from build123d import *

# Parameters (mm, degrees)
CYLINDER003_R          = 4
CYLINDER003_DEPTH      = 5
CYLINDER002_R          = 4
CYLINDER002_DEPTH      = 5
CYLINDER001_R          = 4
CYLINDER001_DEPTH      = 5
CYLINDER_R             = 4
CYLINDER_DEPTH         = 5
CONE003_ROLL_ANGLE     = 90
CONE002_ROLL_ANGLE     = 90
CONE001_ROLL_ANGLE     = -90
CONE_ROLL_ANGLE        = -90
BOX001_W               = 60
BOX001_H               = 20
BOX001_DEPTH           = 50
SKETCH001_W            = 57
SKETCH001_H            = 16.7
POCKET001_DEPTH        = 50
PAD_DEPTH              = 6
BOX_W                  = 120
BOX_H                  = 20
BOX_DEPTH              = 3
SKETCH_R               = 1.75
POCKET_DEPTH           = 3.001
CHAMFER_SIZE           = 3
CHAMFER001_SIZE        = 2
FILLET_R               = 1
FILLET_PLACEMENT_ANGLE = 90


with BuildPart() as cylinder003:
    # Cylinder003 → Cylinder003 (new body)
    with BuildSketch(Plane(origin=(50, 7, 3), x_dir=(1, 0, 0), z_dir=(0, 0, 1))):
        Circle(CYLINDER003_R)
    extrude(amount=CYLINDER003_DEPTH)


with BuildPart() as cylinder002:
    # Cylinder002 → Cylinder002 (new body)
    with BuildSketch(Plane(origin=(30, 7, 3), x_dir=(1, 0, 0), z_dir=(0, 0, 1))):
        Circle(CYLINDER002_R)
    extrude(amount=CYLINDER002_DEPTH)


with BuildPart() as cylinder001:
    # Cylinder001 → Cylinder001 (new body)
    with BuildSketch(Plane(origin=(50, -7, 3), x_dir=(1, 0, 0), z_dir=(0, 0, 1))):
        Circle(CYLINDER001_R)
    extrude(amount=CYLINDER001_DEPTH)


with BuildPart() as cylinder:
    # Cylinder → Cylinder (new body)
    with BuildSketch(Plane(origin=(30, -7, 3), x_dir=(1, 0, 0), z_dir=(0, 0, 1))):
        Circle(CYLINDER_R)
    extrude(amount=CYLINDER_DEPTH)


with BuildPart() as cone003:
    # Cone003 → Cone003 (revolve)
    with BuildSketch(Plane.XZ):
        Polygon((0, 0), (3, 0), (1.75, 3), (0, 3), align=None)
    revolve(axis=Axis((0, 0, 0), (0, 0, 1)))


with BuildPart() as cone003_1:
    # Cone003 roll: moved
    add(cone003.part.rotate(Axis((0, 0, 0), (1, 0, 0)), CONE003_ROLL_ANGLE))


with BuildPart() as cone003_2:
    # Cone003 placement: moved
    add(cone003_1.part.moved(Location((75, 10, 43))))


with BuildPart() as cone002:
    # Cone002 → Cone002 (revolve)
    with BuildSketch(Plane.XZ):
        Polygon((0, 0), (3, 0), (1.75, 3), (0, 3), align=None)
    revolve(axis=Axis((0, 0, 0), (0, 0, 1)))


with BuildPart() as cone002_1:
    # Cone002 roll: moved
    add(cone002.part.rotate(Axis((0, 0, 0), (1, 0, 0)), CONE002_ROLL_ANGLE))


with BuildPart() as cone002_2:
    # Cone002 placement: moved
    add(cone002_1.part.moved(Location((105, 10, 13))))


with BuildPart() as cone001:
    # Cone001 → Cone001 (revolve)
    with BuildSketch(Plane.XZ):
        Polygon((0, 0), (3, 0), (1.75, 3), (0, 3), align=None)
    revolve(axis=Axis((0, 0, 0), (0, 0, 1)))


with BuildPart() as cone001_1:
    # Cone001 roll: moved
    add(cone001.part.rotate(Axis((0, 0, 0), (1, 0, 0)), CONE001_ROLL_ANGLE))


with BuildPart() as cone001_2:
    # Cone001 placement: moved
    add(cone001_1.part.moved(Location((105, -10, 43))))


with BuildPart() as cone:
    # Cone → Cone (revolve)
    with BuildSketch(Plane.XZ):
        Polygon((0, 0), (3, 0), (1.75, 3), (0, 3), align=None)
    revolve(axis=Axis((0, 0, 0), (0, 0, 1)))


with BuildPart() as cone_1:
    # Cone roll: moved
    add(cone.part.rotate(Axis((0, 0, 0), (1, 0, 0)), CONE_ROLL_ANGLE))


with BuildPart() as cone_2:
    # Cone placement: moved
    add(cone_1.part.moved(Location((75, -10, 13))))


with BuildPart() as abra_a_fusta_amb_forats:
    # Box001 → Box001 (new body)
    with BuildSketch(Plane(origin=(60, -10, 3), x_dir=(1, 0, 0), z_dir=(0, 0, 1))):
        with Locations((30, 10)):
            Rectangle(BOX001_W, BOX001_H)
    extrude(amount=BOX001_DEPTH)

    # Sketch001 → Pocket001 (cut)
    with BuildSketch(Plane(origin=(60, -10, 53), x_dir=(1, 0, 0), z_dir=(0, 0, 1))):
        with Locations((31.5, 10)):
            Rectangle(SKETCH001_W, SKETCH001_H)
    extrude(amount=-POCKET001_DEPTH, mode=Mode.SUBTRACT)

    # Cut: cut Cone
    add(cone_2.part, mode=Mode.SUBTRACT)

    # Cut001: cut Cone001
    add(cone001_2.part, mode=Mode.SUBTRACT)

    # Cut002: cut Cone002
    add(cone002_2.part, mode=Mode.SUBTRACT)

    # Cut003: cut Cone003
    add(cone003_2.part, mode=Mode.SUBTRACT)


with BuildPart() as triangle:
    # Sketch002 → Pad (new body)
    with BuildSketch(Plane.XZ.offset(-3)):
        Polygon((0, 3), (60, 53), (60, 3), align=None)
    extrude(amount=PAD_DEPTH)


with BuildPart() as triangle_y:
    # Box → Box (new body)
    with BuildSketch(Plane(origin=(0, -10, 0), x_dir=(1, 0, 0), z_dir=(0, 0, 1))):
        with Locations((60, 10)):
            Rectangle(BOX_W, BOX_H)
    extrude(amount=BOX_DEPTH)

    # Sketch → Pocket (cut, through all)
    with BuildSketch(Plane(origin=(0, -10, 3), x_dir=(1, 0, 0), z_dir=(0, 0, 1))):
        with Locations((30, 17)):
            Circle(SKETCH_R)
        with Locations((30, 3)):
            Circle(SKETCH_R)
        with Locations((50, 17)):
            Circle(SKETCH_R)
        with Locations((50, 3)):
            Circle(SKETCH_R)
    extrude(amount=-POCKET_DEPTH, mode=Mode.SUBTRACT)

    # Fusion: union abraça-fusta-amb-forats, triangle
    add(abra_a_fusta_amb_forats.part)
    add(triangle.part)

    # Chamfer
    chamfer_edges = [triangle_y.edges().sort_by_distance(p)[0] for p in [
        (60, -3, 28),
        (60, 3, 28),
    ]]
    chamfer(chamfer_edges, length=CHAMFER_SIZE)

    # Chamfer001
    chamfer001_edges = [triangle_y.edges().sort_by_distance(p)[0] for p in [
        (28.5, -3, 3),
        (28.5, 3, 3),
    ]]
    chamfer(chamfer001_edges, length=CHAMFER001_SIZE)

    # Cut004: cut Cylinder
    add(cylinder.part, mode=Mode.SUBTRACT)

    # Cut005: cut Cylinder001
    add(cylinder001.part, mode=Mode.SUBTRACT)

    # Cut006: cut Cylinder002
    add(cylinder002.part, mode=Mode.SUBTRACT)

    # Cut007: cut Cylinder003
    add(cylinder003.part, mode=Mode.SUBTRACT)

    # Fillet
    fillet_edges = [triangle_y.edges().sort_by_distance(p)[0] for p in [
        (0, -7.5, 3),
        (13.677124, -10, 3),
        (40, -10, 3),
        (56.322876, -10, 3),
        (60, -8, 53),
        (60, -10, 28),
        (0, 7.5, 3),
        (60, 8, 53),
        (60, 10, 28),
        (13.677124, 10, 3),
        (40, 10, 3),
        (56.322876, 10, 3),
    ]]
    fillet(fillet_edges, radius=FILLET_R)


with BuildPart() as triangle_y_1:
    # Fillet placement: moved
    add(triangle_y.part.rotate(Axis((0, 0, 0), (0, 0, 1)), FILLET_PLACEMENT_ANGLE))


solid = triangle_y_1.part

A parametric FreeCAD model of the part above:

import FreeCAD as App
import Part
import Sketcher
Q = App.Units.Quantity


def edges_at(feature, points):
    """Names of the edges that pass closest to the given points."""
    edges = feature.Shape.Edges
    near = lambda p: min(range(len(edges)), key=lambda i: edges[i].distToShape(Part.Vertex(*p))[0])
    return sorted({f"Edge{near(p) + 1}" for p in points})


def add_polygon(sketch, points):
    """Adds a closed chain of lines whose ends are joined by coincident constraints."""
    first, n = sketch.GeometryCount, len(points)
    for a, b in zip(points, points[1:] + points[:1]):
        sketch.addGeometry(Part.LineSegment(App.Vector(*a, 0), App.Vector(*b, 0)), False)
    for i in range(n):
        sketch.addConstraint(Sketcher.Constraint("Coincident", first + i, 2, first + (i + 1) % n, 1))

doc = App.newDocument("Part")
body = doc.addObject("PartDesign::Body", "Body")

sketch1 = doc.addObject("Sketcher::SketchObject", "Sketch")
body.addObject(sketch1)
sketch1.AttachmentSupport = (doc.XY_Plane, [""])
sketch1.MapMode = "FlatFace"
sketch1.AttachmentOffset = App.Placement(App.Vector(0, 0, 3), App.Rotation())
sketch1.addGeometry(Part.Circle(App.Vector(50, 7, 0), App.Vector(0, 0, 1), 4), False)
sketch1.addConstraint([
    Sketcher.Constraint("Diameter", 0, Q("8 mm")),
    Sketcher.Constraint("DistanceX", -1, 1, 0, 3, Q("50 mm")),
    Sketcher.Constraint("DistanceY", -1, 1, 0, 3, Q("7 mm")),
])
pad1 = doc.addObject("PartDesign::Pad", "Pad")
body.addObject(pad1)
pad1.Profile = sketch1
pad1.Length = 5
body2 = doc.addObject("PartDesign::Body", "Body001")

sketch2 = doc.addObject("Sketcher::SketchObject", "Sketch001")
body2.addObject(sketch2)
sketch2.AttachmentSupport = (doc.getObject("XY_Plane001"), [""])
sketch2.MapMode = "FlatFace"
sketch2.AttachmentOffset = App.Placement(App.Vector(0, 0, 3), App.Rotation())
sketch2.addGeometry(Part.Circle(App.Vector(30, 7, 0), App.Vector(0, 0, 1), 4), False)
sketch2.addConstraint([
    Sketcher.Constraint("Diameter", 0, Q("8 mm")),
    Sketcher.Constraint("DistanceX", -1, 1, 0, 3, Q("30 mm")),
    Sketcher.Constraint("DistanceY", -1, 1, 0, 3, Q("7 mm")),
])
pad2 = doc.addObject("PartDesign::Pad", "Pad001")
body2.addObject(pad2)
pad2.Profile = sketch2
pad2.Length = 5
body3 = doc.addObject("PartDesign::Body", "Body002")

sketch3 = doc.addObject("Sketcher::SketchObject", "Sketch002")
body3.addObject(sketch3)
sketch3.AttachmentSupport = (doc.getObject("XY_Plane002"), [""])
sketch3.MapMode = "FlatFace"
sketch3.AttachmentOffset = App.Placement(App.Vector(0, 0, 3), App.Rotation())
sketch3.addGeometry(Part.Circle(App.Vector(50, -7, 0), App.Vector(0, 0, 1), 4), False)
sketch3.addConstraint([
    Sketcher.Constraint("Diameter", 0, Q("8 mm")),
    Sketcher.Constraint("DistanceX", -1, 1, 0, 3, Q("50 mm")),
    Sketcher.Constraint("DistanceY", 0, 3, -1, 1, Q("7 mm")),
])
pad3 = doc.addObject("PartDesign::Pad", "Pad002")
body3.addObject(pad3)
pad3.Profile = sketch3
pad3.Length = 5
body4 = doc.addObject("PartDesign::Body", "Body003")

sketch4 = doc.addObject("Sketcher::SketchObject", "Sketch003")
body4.addObject(sketch4)
sketch4.AttachmentSupport = (doc.getObject("XY_Plane003"), [""])
sketch4.MapMode = "FlatFace"
sketch4.AttachmentOffset = App.Placement(App.Vector(0, 0, 3), App.Rotation())
sketch4.addGeometry(Part.Circle(App.Vector(30, -7, 0), App.Vector(0, 0, 1), 4), False)
sketch4.addConstraint([
    Sketcher.Constraint("Diameter", 0, Q("8 mm")),
    Sketcher.Constraint("DistanceX", -1, 1, 0, 3, Q("30 mm")),
    Sketcher.Constraint("DistanceY", 0, 3, -1, 1, Q("7 mm")),
])
pad4 = doc.addObject("PartDesign::Pad", "Pad003")
body4.addObject(pad4)
pad4.Profile = sketch4
pad4.Length = 5
body5 = doc.addObject("PartDesign::Body", "Body004")

sketch5 = doc.addObject("Sketcher::SketchObject", "Sketch004")
body5.addObject(sketch5)
sketch5.AttachmentSupport = (doc.getObject("XZ_Plane004"), [""])
sketch5.MapMode = "FlatFace"
add_polygon(sketch5, [(0, 0), (3, 0), (1.8, 3), (0, 3)])
sketch5.addConstraint([
    Sketcher.Constraint("Horizontal", 0),
    Sketcher.Constraint("Horizontal", 2),
    Sketcher.Constraint("Vertical", 3),
    Sketcher.Constraint("Coincident", 3, 2, -1, 1),
    Sketcher.Constraint("Equal", 0, 3),
    Sketcher.Constraint("DistanceX", 0, 1, 0, 2, Q("3 mm")),
    Sketcher.Constraint("DistanceX", 2, 2, 2, 1, Q("1.75 mm")),
])
revolution = doc.addObject("PartDesign::Revolution", "Revolution")
body5.addObject(revolution)
revolution.Profile = sketch5
revolution.ReferenceAxis = (sketch5, ["V_Axis"])
revolution.Angle = 360
body6 = doc.addObject("PartDesign::Body", "Body005")
doc.recompute()

body5.Placement = App.Placement(App.Vector(0, 0, 0), App.Rotation(App.Vector(1, 0, 0), 90))
boolean = doc.addObject("PartDesign::Boolean", "Boolean")
body6.addObject(boolean)
boolean.Type = "Fuse"
boolean.addObjects([body5])
body7 = doc.addObject("PartDesign::Body", "Body006")
doc.recompute()

body6.Placement = App.Placement(App.Vector(75, 10, 43), App.Rotation(App.Vector(0, 0, 1), 0))
boolean2 = doc.addObject("PartDesign::Boolean", "Boolean001")
body7.addObject(boolean2)
boolean2.Type = "Fuse"
boolean2.addObjects([body6])
body8 = doc.addObject("PartDesign::Body", "Body007")

sketch6 = doc.addObject("Sketcher::SketchObject", "Sketch005")
body8.addObject(sketch6)
sketch6.AttachmentSupport = (doc.getObject("XZ_Plane007"), [""])
sketch6.MapMode = "FlatFace"
add_polygon(sketch6, [(0, 0), (3, 0), (1.8, 3), (0, 3)])
sketch6.addConstraint([
    Sketcher.Constraint("Horizontal", 0),
    Sketcher.Constraint("Horizontal", 2),
    Sketcher.Constraint("Vertical", 3),
    Sketcher.Constraint("Coincident", 3, 2, -1, 1),
    Sketcher.Constraint("Equal", 0, 3),
    Sketcher.Constraint("DistanceX", 0, 1, 0, 2, Q("3 mm")),
    Sketcher.Constraint("DistanceX", 2, 2, 2, 1, Q("1.75 mm")),
])
revolution2 = doc.addObject("PartDesign::Revolution", "Revolution001")
body8.addObject(revolution2)
revolution2.Profile = sketch6
revolution2.ReferenceAxis = (sketch6, ["V_Axis"])
revolution2.Angle = 360
body9 = doc.addObject("PartDesign::Body", "Body008")
doc.recompute()

body8.Placement = App.Placement(App.Vector(0, 0, 0), App.Rotation(App.Vector(1, 0, 0), 90))
boolean3 = doc.addObject("PartDesign::Boolean", "Boolean002")
body9.addObject(boolean3)
boolean3.Type = "Fuse"
boolean3.addObjects([body8])
body10 = doc.addObject("PartDesign::Body", "Body009")
doc.recompute()

body9.Placement = App.Placement(App.Vector(105, 10, 13), App.Rotation(App.Vector(0, 0, 1), 0))
boolean4 = doc.addObject("PartDesign::Boolean", "Boolean003")
body10.addObject(boolean4)
boolean4.Type = "Fuse"
boolean4.addObjects([body9])
body11 = doc.addObject("PartDesign::Body", "Body010")

sketch7 = doc.addObject("Sketcher::SketchObject", "Sketch006")
body11.addObject(sketch7)
sketch7.AttachmentSupport = (doc.getObject("XZ_Plane010"), [""])
sketch7.MapMode = "FlatFace"
add_polygon(sketch7, [(0, 0), (3, 0), (1.8, 3), (0, 3)])
sketch7.addConstraint([
    Sketcher.Constraint("Horizontal", 0),
    Sketcher.Constraint("Horizontal", 2),
    Sketcher.Constraint("Vertical", 3),
    Sketcher.Constraint("Coincident", 3, 2, -1, 1),
    Sketcher.Constraint("Equal", 0, 3),
    Sketcher.Constraint("DistanceX", 0, 1, 0, 2, Q("3 mm")),
    Sketcher.Constraint("DistanceX", 2, 2, 2, 1, Q("1.75 mm")),
])
revolution3 = doc.addObject("PartDesign::Revolution", "Revolution002")
body11.addObject(revolution3)
revolution3.Profile = sketch7
revolution3.ReferenceAxis = (sketch7, ["V_Axis"])
revolution3.Angle = 360
body12 = doc.addObject("PartDesign::Body", "Body011")
doc.recompute()

body11.Placement = App.Placement(App.Vector(0, 0, 0), App.Rotation(App.Vector(1, 0, 0), 270))
boolean5 = doc.addObject("PartDesign::Boolean", "Boolean004")
body12.addObject(boolean5)
boolean5.Type = "Fuse"
boolean5.addObjects([body11])
body13 = doc.addObject("PartDesign::Body", "Body012")
doc.recompute()

body12.Placement = App.Placement(App.Vector(105, -10, 43), App.Rotation(App.Vector(0, 0, 1), 0))
boolean6 = doc.addObject("PartDesign::Boolean", "Boolean005")
body13.addObject(boolean6)
boolean6.Type = "Fuse"
boolean6.addObjects([body12])
body14 = doc.addObject("PartDesign::Body", "Body013")

sketch8 = doc.addObject("Sketcher::SketchObject", "Sketch007")
body14.addObject(sketch8)
sketch8.AttachmentSupport = (doc.getObject("XZ_Plane013"), [""])
sketch8.MapMode = "FlatFace"
add_polygon(sketch8, [(0, 0), (3, 0), (1.8, 3), (0, 3)])
sketch8.addConstraint([
    Sketcher.Constraint("Horizontal", 0),
    Sketcher.Constraint("Horizontal", 2),
    Sketcher.Constraint("Vertical", 3),
    Sketcher.Constraint("Coincident", 3, 2, -1, 1),
    Sketcher.Constraint("Equal", 0, 3),
    Sketcher.Constraint("DistanceX", 0, 1, 0, 2, Q("3 mm")),
    Sketcher.Constraint("DistanceX", 2, 2, 2, 1, Q("1.75 mm")),
])
revolution4 = doc.addObject("PartDesign::Revolution", "Revolution003")
body14.addObject(revolution4)
revolution4.Profile = sketch8
revolution4.ReferenceAxis = (sketch8, ["V_Axis"])
revolution4.Angle = 360
body15 = doc.addObject("PartDesign::Body", "Body014")
doc.recompute()

body14.Placement = App.Placement(App.Vector(0, 0, 0), App.Rotation(App.Vector(1, 0, 0), 270))
boolean7 = doc.addObject("PartDesign::Boolean", "Boolean006")
body15.addObject(boolean7)
boolean7.Type = "Fuse"
boolean7.addObjects([body14])
body16 = doc.addObject("PartDesign::Body", "Body015")
doc.recompute()

body15.Placement = App.Placement(App.Vector(75, -10, 13), App.Rotation(App.Vector(0, 0, 1), 0))
boolean8 = doc.addObject("PartDesign::Boolean", "Boolean007")
body16.addObject(boolean8)
boolean8.Type = "Fuse"
boolean8.addObjects([body15])
body17 = doc.addObject("PartDesign::Body", "Body016")

sketch9 = doc.addObject("Sketcher::SketchObject", "Sketch008")
body17.addObject(sketch9)
sketch9.AttachmentSupport = (doc.getObject("XY_Plane016"), [""])
sketch9.MapMode = "FlatFace"
sketch9.AttachmentOffset = App.Placement(App.Vector(0, 0, 3), App.Rotation())
add_polygon(sketch9, [(60, 10), (60, -10), (120, -10), (120, 10)])
sketch9.addConstraint([
    Sketcher.Constraint("Vertical", 0),
    Sketcher.Constraint("Horizontal", 1),
    Sketcher.Constraint("Vertical", 2),
    Sketcher.Constraint("Horizontal", 3),
    Sketcher.Constraint("DistanceX", 1, 1, 1, 2, Q("60 mm")),
    Sketcher.Constraint("DistanceY", 0, 2, 0, 1, Q("20 mm")),
    Sketcher.Constraint("DistanceX", -1, 1, 0, 2, Q("60 mm")),
    Sketcher.Constraint("DistanceY", 0, 2, -1, 1, Q("10 mm")),
])
pad5 = doc.addObject("PartDesign::Pad", "Pad004")
body17.addObject(pad5)
pad5.Profile = sketch9
pad5.Length = 50

sketch10 = doc.addObject("Sketcher::SketchObject", "Sketch009")
body17.addObject(sketch10)
sketch10.AttachmentSupport = (doc.getObject("XY_Plane016"), [""])
sketch10.MapMode = "FlatFace"
sketch10.AttachmentOffset = App.Placement(App.Vector(0, 0, 53), App.Rotation())
add_polygon(sketch10, [(63, 8), (63, -8), (120, -8), (120, 8)])
sketch10.addConstraint([
    Sketcher.Constraint("Vertical", 0),
    Sketcher.Constraint("Horizontal", 1),
    Sketcher.Constraint("Vertical", 2),
    Sketcher.Constraint("Horizontal", 3),
    Sketcher.Constraint("DistanceX", 1, 1, 1, 2, Q("57 mm")),
    Sketcher.Constraint("DistanceY", 0, 2, 0, 1, Q("16.7 mm")),
    Sketcher.Constraint("DistanceX", -1, 1, 0, 2, Q("63 mm")),
    Sketcher.Constraint("DistanceY", 0, 2, -1, 1, Q("8.35 mm")),
])
pocket1 = doc.addObject("PartDesign::Pocket", "Pocket")
body17.addObject(pocket1)
pocket1.Profile = sketch10
pocket1.Length = 50
doc.recompute()

boolean9 = doc.addObject("PartDesign::Boolean", "Boolean008")
body17.addObject(boolean9)
boolean9.Type = "Cut"
boolean9.addObjects([body16])
doc.recompute()

boolean10 = doc.addObject("PartDesign::Boolean", "Boolean009")
body17.addObject(boolean10)
boolean10.Type = "Cut"
boolean10.addObjects([body13])
doc.recompute()

boolean11 = doc.addObject("PartDesign::Boolean", "Boolean010")
body17.addObject(boolean11)
boolean11.Type = "Cut"
boolean11.addObjects([body10])
doc.recompute()

boolean12 = doc.addObject("PartDesign::Boolean", "Boolean011")
body17.addObject(boolean12)
boolean12.Type = "Cut"
boolean12.addObjects([body7])
body18 = doc.addObject("PartDesign::Body", "Body017")

sketch11 = doc.addObject("Sketcher::SketchObject", "Sketch010")
body18.addObject(sketch11)
sketch11.AttachmentSupport = (doc.getObject("XZ_Plane017"), [""])
sketch11.MapMode = "FlatFace"
sketch11.AttachmentOffset = App.Placement(App.Vector(0, 0, -3), App.Rotation())
add_polygon(sketch11, [(60, 53), (0, 3), (60, 3)])
sketch11.addConstraint([
    Sketcher.Constraint("Horizontal", 1),
    Sketcher.Constraint("Vertical", 2),
    Sketcher.Constraint("PointOnObject", 0, 2, -2),
    Sketcher.Constraint("DistanceX", 1, 1, 1, 2, Q("60 mm")),
    Sketcher.Constraint("DistanceY", 2, 1, 2, 2, Q("50 mm")),
    Sketcher.Constraint("DistanceY", -1, 1, 0, 2, Q("3 mm")),
])
pad6 = doc.addObject("PartDesign::Pad", "Pad005")
body18.addObject(pad6)
pad6.Profile = sketch11
pad6.Length = 6
body19 = doc.addObject("PartDesign::Body", "Body018")

sketch12 = doc.addObject("Sketcher::SketchObject", "Sketch011")
body19.addObject(sketch12)
sketch12.AttachmentSupport = (doc.getObject("XY_Plane018"), [""])
sketch12.MapMode = "FlatFace"
add_polygon(sketch12, [(0, 10), (0, -10), (120, -10), (120, 10)])
sketch12.addConstraint([
    Sketcher.Constraint("Vertical", 0),
    Sketcher.Constraint("Horizontal", 1),
    Sketcher.Constraint("Vertical", 2),
    Sketcher.Constraint("Horizontal", 3),
    Sketcher.Constraint("Symmetric", 0, 2, 3, 2, -1, 1),
    Sketcher.Constraint("DistanceX", 1, 1, 1, 2, Q("120 mm")),
    Sketcher.Constraint("DistanceY", 0, 2, 0, 1, Q("20 mm")),
])
pad7 = doc.addObject("PartDesign::Pad", "Pad006")
body19.addObject(pad7)
pad7.Profile = sketch12
pad7.Length = 3

sketch13 = doc.addObject("Sketcher::SketchObject", "Sketch012")
body19.addObject(sketch13)
sketch13.AttachmentSupport = (doc.getObject("XY_Plane018"), [""])
sketch13.MapMode = "FlatFace"
sketch13.AttachmentOffset = App.Placement(App.Vector(0, 0, 3), App.Rotation())
sketch13.addGeometry([
    Part.Circle(App.Vector(30, 7, 0), App.Vector(0, 0, 1), 1.8),
    Part.Circle(App.Vector(30, -7, 0), App.Vector(0, 0, 1), 1.8),
    Part.Circle(App.Vector(50, 7, 0), App.Vector(0, 0, 1), 1.8),
    Part.Circle(App.Vector(50, -7, 0), App.Vector(0, 0, 1), 1.8),
], False)
sketch13.addConstraint([
    Sketcher.Constraint("Equal", 0, 1),
    Sketcher.Constraint("Equal", 1, 2),
    Sketcher.Constraint("Equal", 2, 3),
    Sketcher.Constraint("Symmetric", 0, 3, 1, 3, -1),
    Sketcher.Constraint("Symmetric", 2, 3, 3, 3, -1),
    Sketcher.Constraint("Horizontal", 0, 3, 2, 3),
    Sketcher.Constraint("Diameter", 0, Q("3.5 mm")),
    Sketcher.Constraint("DistanceX", -1, 1, 0, 3, Q("30 mm")),
    Sketcher.Constraint("DistanceY", -1, 1, 0, 3, Q("7 mm")),
    Sketcher.Constraint("DistanceX", -1, 1, 2, 3, Q("50 mm")),
])
pocket2 = doc.addObject("PartDesign::Pocket", "Pocket001")
body19.addObject(pocket2)
pocket2.Profile = sketch13
pocket2.Type = "ThroughAll"
doc.recompute()

boolean13 = doc.addObject("PartDesign::Boolean", "Boolean012")
body19.addObject(boolean13)
boolean13.Type = "Fuse"
boolean13.addObjects([body17])
doc.recompute()

boolean14 = doc.addObject("PartDesign::Boolean", "Boolean013")
body19.addObject(boolean14)
boolean14.Type = "Fuse"
boolean14.addObjects([body18])
doc.recompute()

chamfer = doc.addObject("PartDesign::Chamfer", "Chamfer")
body19.addObject(chamfer)
chamfer.Base = (boolean14, edges_at(boolean14, [(60, -3, 28), (60, 3, 28)]))
chamfer.Size = 3
doc.recompute()

chamfer2 = doc.addObject("PartDesign::Chamfer", "Chamfer001")
body19.addObject(chamfer2)
chamfer2.Base = (chamfer, edges_at(chamfer, [(28.5, -3, 3), (28.5, 3, 3)]))
chamfer2.Size = 2
doc.recompute()

boolean15 = doc.addObject("PartDesign::Boolean", "Boolean014")
body19.addObject(boolean15)
boolean15.Type = "Cut"
boolean15.addObjects([body4])
doc.recompute()

boolean16 = doc.addObject("PartDesign::Boolean", "Boolean015")
body19.addObject(boolean16)
boolean16.Type = "Cut"
boolean16.addObjects([body3])
doc.recompute()

boolean17 = doc.addObject("PartDesign::Boolean", "Boolean016")
body19.addObject(boolean17)
boolean17.Type = "Cut"
boolean17.addObjects([body2])
doc.recompute()

boolean18 = doc.addObject("PartDesign::Boolean", "Boolean017")
body19.addObject(boolean18)
boolean18.Type = "Cut"
boolean18.addObjects([body])
doc.recompute()

fillet = doc.addObject("PartDesign::Fillet", "Fillet")
body19.addObject(fillet)
fillet.Base = (boolean18, edges_at(boolean18, [
    (0, -7.5, 3),
    (30, -10, 3),
    (30, -10, 3),
    (30, -10, 3),
    (60, -8, 53),
    (60, -10, 28),
    (0, 7.5, 3),
    (60, 8, 53),
    (60, 10, 28),
    (30, 10, 3),
    (30, 10, 3),
    (30, 10, 3),
]))
fillet.Radius = 1
body20 = doc.addObject("PartDesign::Body", "Body019")
doc.recompute()

body19.Placement = App.Placement(App.Vector(0, 0, 0), App.Rotation(App.Vector(0, 0, 1), 90))
boolean19 = doc.addObject("PartDesign::Boolean", "Boolean018")
body20.addObject(boolean19)
boolean19.Type = "Fuse"
boolean19.addObjects([body19])

doc.recompute()
